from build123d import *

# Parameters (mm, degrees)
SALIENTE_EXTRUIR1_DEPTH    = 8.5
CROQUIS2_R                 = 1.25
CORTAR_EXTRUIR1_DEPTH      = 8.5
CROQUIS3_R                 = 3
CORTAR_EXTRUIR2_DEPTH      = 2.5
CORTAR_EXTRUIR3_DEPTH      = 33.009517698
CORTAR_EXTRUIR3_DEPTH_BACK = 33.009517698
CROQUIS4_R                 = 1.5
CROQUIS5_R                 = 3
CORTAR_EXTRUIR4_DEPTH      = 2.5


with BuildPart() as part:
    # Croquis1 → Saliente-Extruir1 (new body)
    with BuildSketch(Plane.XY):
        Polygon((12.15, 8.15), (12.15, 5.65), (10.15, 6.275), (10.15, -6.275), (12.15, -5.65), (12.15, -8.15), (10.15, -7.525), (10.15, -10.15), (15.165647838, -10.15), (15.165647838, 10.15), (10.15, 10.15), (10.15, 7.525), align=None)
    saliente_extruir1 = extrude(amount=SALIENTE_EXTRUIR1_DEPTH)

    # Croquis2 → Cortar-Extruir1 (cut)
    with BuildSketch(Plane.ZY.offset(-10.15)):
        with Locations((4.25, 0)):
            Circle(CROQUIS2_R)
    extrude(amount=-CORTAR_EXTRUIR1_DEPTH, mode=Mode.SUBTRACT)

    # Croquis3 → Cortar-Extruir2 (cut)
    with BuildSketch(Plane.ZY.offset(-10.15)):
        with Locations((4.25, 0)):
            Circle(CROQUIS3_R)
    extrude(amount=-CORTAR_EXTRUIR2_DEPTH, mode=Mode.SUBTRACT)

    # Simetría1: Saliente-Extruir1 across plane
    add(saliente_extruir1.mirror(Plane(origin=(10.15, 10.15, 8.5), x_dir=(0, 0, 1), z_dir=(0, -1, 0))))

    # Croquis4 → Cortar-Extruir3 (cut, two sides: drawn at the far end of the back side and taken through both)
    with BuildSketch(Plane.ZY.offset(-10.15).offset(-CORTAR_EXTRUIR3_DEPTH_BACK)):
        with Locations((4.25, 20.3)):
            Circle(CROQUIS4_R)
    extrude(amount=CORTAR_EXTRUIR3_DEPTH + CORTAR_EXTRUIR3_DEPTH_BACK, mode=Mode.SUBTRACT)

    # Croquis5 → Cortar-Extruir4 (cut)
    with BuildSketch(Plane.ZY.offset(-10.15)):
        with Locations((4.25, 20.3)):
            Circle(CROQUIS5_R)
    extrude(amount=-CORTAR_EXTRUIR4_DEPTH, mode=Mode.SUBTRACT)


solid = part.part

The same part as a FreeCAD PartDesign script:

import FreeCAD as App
import Part
import Sketcher

V = App.Vector
Q = App.Units.Quantity

doc = App.newDocument("Part")
body = doc.addObject("PartDesign::Body", "Body")

sketch1 = doc.addObject("Sketcher::SketchObject", "Sketch")
body.addObject(sketch1)
sketch1.AttachmentSupport = (doc.XY_Plane, [""])
sketch1.MapMode = "FlatFace"
sketch1.addGeometry([
    Part.LineSegment(V(12.2, 8.2, 0), V(12.2, 5.7, 0)),
    Part.LineSegment(V(12.2, 5.7, 0), V(10.2, 6.3, 0)),
    Part.LineSegment(V(10.2, 6.3, 0), V(10.2, -6.3, 0)),
    Part.LineSegment(V(10.2, -6.3, 0), V(12.2, -5.7, 0)),
    Part.LineSegment(V(12.2, -5.7, 0), V(12.2, -8.2, 0)),
    Part.LineSegment(V(12.2, -8.2, 0), V(10.2, -7.5, 0)),
    Part.LineSegment(V(10.2, -7.5, 0), V(10.2, -10.2, 0)),
    Part.LineSegment(V(10.2, -10.2, 0), V(15.2, -10.2, 0)),
    Part.LineSegment(V(15.2, -10.2, 0), V(15.2, 10.2, 0)),
    Part.LineSegment(V(15.2, 10.2, 0), V(10.2, 10.2, 0)),
    Part.LineSegment(V(10.2, 10.2, 0), V(10.2, 7.5, 0)),
    Part.LineSegment(V(10.2, 7.5, 0), V(12.2, 8.2, 0)),
], False)
sketch1.addConstraint([
    Sketcher.Constraint("Coincident", 0, 2, 1, 1),
    Sketcher.Constraint("Coincident", 1, 2, 2, 1),
    Sketcher.Constraint("Coincident", 2, 2, 3, 1),
    Sketcher.Constraint("Coincident", 3, 2, 4, 1),
    Sketcher.Constraint("Coincident", 4, 2, 5, 1),
    Sketcher.Constraint("Coincident", 5, 2, 6, 1),
    Sketcher.Constraint("Coincident", 6, 2, 7, 1),
    Sketcher.Constraint("Coincident", 7, 2, 8, 1),
    Sketcher.Constraint("Coincident", 8, 2, 9, 1),
    Sketcher.Constraint("Coincident", 9, 2, 10, 1),
    Sketcher.Constraint("Coincident", 10, 2, 11, 1),
    Sketcher.Constraint("Coincident", 11, 2, 0, 1),
    Sketcher.Constraint("Vertical", 0),
    Sketcher.Constraint("Vertical", 2),
    Sketcher.Constraint("Vertical", 4),
    Sketcher.Constraint("Vertical", 6),
    Sketcher.Constraint("Horizontal", 7),
    Sketcher.Constraint("Vertical", 8),
    Sketcher.Constraint("Horizontal", 9),
    Sketcher.Constraint("Vertical", 10),
    Sketcher.Constraint("Symmetric", 0, 2, 3, 2, -1),
    Sketcher.Constraint("Symmetric", 6, 2, 9, 2, -1),
    Sketcher.Constraint("Parallel", 1, 5),
    Sketcher.Constraint("Parallel", 3, 11),
    Sketcher.Constraint("Vertical", 2, 2, 5, 2),
    Sketcher.Constraint("Equal", 0, 4),
    Sketcher.Constraint("Equal", 6, 10),
    Sketcher.Constraint("DistanceY", 0, 2, 0, 1, Q("2.5 mm")),
    Sketcher.Constraint("DistanceY", 8, 1, 8, 2, Q("20.3 mm")),
    Sketcher.Constraint("DistanceX", 1, 2, 0, 2, Q("2 mm")),
    Sketcher.Constraint("DistanceY", 6, 2, 4, 2, Q("2 mm")),
    Sketcher.Constraint("DistanceY", 2, 2, 2, 1, Q("12.55 mm")),
    Sketcher.Constraint("DistanceX", -1, 1, 0, 2, Q("12.15 mm")),
    Sketcher.Constraint("DistanceX", 7, 1, 7, 2, Q("5.015648 mm")),
])
pad1 = doc.addObject("PartDesign::Pad", "Pad")
body.addObject(pad1)
pad1.Profile = sketch1
pad1.Length = 8.5

sketch2 = doc.addObject("Sketcher::SketchObject", "Sketch001")
body.addObject(sketch2)
sketch2.AttachmentSupport = (doc.YZ_Plane, [""])
sketch2.MapMode = "FlatFace"
sketch2.AttachmentOffset = App.Placement(V(0, 0, 10.15), App.Rotation())
sketch2.addGeometry(Part.Circle(V(0, 4.2, 0), V(0, 0, 1), 1.2), False)
sketch2.addConstraint([
    Sketcher.Constraint("PointOnObject", 0, 3, -2),
    Sketcher.Constraint("Diameter", 0, Q("2.5 mm")),
    Sketcher.Constraint("DistanceY", -1, 1, 0, 3, Q("4.25 mm")),
])
pocket1 = doc.addObject("PartDesign::Pocket", "Pocket")
body.addObject(pocket1)
pocket1.Profile = sketch2
pocket1.Length = 8.5
pocket1.Reversed = True

sketch3 = doc.addObject("Sketcher::SketchObject", "Sketch002")
body.addObject(sketch3)
sketch3.AttachmentSupport = (doc.YZ_Plane, [""])
sketch3.MapMode = "FlatFace"
sketch3.AttachmentOffset = App.Placement(V(0, 0, 10.15), App.Rotation())
sketch3.addGeometry(Part.Circle(V(0, 4.2, 0), V(0, 0, 1), 3), False)
sketch3.addConstraint([
    Sketcher.Constraint("PointOnObject", 0, 3, -2),
    Sketcher.Constraint("Diameter", 0, Q("6 mm")),
    Sketcher.Constraint("DistanceY", -1, 1, 0, 3, Q("4.25 mm")),
])
pocket2 = doc.addObject("PartDesign::Pocket", "Pocket001")
body.addObject(pocket2)
pocket2.Profile = sketch3
pocket2.Length = 2.5
pocket2.Reversed = True
doc.recompute()

datumplane = doc.addObject("PartDesign::Plane", "DatumPlane")
body.addObject(datumplane)
datumplane.AttachmentSupport = (doc.XZ_Plane, [""])
datumplane.MapMode = "FlatFace"
datumplane.AttachmentOffset = App.Placement(V(0, 0, -10.15), App.Rotation())
mirrored = doc.addObject("PartDesign::Mirrored", "Mirrored")
body.addObject(mirrored)
mirrored.Originals = [pad1]
mirrored.MirrorPlane = (datumplane, [""])
body.Tip = mirrored

sketch4 = doc.addObject("Sketcher::SketchObject", "Sketch003")
body.addObject(sketch4)
sketch4.AttachmentSupport = (doc.YZ_Plane, [""])
sketch4.MapMode = "FlatFace"
sketch4.AttachmentOffset = App.Placement(V(0, 0, 10.15), App.Rotation())
sketch4.addGeometry(Part.Circle(V(20.3, 4.2, 0), V(0, 0, 1), 1.5), False)
sketch4.addConstraint([
    Sketcher.Constraint("Diameter", 0, Q("3 mm")),
    Sketcher.Constraint("DistanceX", -1, 1, 0, 3, Q("20.3 mm")),
    Sketcher.Constraint("DistanceY", -1, 1, 0, 3, Q("4.25 mm")),
])
pocket3 = doc.addObject("PartDesign::Pocket", "Pocket002")
body.addObject(pocket3)
pocket3.Profile = sketch4
pocket3.Type = "ThroughAll"
pocket3.Midplane = True

sketch5 = doc.addObject("Sketcher::SketchObject", "Sketch004")
body.addObject(sketch5)
sketch5.AttachmentSupport = (doc.YZ_Plane, [""])
sketch5.MapMode = "FlatFace"
sketch5.AttachmentOffset = App.Placement(V(0, 0, 10.15), App.Rotation())
sketch5.addGeometry(Part.Circle(V(20.3, 4.2, 0), V(0, 0, 1), 3), False)
sketch5.addConstraint([
    Sketcher.Constraint("Diameter", 0, Q("6 mm")),
    Sketcher.Constraint("DistanceX", -1, 1, 0, 3, Q("20.3 mm")),
    Sketcher.Constraint("DistanceY", -1, 1, 0, 3, Q("4.25 mm")),
])
pocket4 = doc.addObject("PartDesign::Pocket", "Pocket003")
body.addObject(pocket4)
pocket4.Profile = sketch5
pocket4.Length = 2.5
pocket4.Reversed = True

doc.recompute()
